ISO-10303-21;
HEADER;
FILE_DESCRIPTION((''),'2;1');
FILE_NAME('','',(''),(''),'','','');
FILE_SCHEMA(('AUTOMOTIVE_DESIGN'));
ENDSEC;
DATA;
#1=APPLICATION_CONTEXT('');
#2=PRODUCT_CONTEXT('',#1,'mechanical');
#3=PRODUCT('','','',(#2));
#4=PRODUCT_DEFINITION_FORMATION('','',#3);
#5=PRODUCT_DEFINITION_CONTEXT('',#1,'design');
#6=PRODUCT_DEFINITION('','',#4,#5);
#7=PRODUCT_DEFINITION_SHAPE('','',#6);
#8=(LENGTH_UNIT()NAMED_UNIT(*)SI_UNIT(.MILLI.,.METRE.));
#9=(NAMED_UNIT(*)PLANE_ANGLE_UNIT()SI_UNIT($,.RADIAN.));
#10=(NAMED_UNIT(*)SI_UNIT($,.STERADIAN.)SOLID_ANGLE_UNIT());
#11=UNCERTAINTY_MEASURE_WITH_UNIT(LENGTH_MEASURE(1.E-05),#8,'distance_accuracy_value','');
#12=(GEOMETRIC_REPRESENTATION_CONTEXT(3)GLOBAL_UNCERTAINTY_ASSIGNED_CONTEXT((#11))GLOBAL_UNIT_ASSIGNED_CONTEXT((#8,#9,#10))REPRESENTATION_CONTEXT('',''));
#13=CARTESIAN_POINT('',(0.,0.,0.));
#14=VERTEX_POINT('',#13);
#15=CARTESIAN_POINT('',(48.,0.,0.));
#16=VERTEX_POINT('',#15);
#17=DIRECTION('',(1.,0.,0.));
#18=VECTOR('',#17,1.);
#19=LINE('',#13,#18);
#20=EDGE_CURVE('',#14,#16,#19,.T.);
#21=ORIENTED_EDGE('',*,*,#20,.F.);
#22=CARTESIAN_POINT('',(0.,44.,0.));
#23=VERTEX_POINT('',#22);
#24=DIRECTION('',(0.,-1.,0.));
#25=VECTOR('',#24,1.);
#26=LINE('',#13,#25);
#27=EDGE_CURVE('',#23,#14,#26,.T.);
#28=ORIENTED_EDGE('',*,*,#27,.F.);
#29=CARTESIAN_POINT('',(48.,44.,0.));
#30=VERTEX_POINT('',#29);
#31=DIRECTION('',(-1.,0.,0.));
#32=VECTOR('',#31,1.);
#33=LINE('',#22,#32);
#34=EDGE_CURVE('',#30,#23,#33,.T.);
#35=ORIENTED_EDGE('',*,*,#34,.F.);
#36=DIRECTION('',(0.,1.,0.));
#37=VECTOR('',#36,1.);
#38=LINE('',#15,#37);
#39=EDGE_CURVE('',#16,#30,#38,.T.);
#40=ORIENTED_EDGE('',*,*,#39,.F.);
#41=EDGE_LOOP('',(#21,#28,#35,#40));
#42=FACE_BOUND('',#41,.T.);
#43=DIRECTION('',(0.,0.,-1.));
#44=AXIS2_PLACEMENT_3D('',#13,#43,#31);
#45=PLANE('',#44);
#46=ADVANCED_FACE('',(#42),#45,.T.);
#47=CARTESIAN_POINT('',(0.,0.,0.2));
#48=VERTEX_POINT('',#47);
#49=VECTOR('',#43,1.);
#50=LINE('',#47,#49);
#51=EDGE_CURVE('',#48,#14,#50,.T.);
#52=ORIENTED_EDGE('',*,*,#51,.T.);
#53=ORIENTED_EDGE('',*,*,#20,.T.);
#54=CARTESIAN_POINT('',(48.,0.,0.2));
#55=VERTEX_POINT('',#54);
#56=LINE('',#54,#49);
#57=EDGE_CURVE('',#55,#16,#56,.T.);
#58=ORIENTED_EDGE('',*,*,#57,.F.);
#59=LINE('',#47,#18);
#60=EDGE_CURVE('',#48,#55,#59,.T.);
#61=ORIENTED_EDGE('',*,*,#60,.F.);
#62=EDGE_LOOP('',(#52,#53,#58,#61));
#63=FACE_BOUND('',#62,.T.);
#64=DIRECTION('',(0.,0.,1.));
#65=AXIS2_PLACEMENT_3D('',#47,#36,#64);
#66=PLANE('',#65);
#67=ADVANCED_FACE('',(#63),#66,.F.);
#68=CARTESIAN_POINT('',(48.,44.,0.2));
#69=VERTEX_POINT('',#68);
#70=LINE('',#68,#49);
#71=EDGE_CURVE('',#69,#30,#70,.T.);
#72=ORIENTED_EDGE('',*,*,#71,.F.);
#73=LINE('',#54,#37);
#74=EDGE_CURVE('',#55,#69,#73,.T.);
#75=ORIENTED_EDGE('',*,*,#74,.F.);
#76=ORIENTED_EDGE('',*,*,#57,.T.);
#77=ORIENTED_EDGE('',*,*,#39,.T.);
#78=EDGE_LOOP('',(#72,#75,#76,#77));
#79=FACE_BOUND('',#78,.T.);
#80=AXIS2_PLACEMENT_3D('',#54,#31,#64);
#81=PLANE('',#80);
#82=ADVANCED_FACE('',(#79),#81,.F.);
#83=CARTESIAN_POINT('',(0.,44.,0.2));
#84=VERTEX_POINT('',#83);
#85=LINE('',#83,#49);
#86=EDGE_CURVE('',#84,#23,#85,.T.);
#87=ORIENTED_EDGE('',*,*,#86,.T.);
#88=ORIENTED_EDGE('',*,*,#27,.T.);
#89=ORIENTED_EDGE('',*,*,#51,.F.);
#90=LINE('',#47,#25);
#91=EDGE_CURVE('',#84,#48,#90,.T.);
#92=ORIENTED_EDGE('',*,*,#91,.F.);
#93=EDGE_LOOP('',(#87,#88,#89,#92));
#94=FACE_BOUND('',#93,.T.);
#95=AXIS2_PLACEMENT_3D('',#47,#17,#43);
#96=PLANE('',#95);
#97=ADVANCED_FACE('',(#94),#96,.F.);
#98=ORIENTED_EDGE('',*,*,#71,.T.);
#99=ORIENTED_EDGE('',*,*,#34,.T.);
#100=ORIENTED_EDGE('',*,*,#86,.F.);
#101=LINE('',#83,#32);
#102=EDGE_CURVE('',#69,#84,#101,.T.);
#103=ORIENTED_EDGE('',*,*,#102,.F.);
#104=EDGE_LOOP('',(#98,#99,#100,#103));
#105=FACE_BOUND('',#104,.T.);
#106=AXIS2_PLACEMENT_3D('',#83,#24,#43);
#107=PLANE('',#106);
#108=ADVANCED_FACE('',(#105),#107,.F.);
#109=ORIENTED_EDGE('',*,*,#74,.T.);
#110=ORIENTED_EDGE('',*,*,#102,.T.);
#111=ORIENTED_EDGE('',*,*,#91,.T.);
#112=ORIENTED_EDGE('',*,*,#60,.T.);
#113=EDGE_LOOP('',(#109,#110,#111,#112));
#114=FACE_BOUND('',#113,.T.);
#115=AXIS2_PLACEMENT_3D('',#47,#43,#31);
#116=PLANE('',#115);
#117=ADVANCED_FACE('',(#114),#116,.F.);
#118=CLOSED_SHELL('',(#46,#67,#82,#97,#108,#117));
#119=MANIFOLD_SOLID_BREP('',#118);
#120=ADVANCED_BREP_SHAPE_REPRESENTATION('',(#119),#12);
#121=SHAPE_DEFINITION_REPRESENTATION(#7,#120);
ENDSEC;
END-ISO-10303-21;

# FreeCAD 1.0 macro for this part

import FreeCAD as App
import Part
import Sketcher
Q = App.Units.Quantity


def add_polygon(sketch, points):
    """Adds a closed chain of lines whose ends are joined by coincident constraints."""
    first, n = sketch.GeometryCount, len(points)
    for a, b in zip(points, points[1:] + points[:1]):
        sketch.addGeometry(Part.LineSegment(App.Vector(*a, 0), App.Vector(*b, 0)), False)
    for i in range(n):
        sketch.addConstraint(Sketcher.Constraint("Coincident", first + i, 2, first + (i + 1) % n, 1))

doc = App.newDocument("Part")
body = doc.addObject("PartDesign::Body", "Body")

# Sketch on XY plane
sketch1 = doc.addObject("Sketcher::SketchObject", "Sketch")
body.addObject(sketch1)
sketch1.AttachmentSupport = (doc.XY_Plane, [""])
sketch1.MapMode = "FlatFace"
add_polygon(sketch1, [(0, 44), (0, 0), (48, 0), (48, 44)])  # lines 0-3
sketch1.addConstraint(Sketcher.Constraint("Vertical", 0))
sketch1.addConstraint(Sketcher.Constraint("Horizontal", 1))
sketch1.addConstraint(Sketcher.Constraint("Vertical", 2))
sketch1.addConstraint(Sketcher.Constraint("Horizontal", 3))
sketch1.addConstraint(Sketcher.Constraint("Coincident", 0, 2, -1, 1))
sketch1.addConstraint(Sketcher.Constraint("DistanceX", 1, 1, 1, 2, Q("48 mm")))
sketch1.addConstraint(Sketcher.Constraint("DistanceY", 0, 2, 0, 1, Q("44 mm")))
pad1 = doc.addObject("PartDesign::Pad", "Pad")
body.addObject(pad1)
pad1.Profile = sketch1
pad1.Length = 0.2

doc.recompute()
